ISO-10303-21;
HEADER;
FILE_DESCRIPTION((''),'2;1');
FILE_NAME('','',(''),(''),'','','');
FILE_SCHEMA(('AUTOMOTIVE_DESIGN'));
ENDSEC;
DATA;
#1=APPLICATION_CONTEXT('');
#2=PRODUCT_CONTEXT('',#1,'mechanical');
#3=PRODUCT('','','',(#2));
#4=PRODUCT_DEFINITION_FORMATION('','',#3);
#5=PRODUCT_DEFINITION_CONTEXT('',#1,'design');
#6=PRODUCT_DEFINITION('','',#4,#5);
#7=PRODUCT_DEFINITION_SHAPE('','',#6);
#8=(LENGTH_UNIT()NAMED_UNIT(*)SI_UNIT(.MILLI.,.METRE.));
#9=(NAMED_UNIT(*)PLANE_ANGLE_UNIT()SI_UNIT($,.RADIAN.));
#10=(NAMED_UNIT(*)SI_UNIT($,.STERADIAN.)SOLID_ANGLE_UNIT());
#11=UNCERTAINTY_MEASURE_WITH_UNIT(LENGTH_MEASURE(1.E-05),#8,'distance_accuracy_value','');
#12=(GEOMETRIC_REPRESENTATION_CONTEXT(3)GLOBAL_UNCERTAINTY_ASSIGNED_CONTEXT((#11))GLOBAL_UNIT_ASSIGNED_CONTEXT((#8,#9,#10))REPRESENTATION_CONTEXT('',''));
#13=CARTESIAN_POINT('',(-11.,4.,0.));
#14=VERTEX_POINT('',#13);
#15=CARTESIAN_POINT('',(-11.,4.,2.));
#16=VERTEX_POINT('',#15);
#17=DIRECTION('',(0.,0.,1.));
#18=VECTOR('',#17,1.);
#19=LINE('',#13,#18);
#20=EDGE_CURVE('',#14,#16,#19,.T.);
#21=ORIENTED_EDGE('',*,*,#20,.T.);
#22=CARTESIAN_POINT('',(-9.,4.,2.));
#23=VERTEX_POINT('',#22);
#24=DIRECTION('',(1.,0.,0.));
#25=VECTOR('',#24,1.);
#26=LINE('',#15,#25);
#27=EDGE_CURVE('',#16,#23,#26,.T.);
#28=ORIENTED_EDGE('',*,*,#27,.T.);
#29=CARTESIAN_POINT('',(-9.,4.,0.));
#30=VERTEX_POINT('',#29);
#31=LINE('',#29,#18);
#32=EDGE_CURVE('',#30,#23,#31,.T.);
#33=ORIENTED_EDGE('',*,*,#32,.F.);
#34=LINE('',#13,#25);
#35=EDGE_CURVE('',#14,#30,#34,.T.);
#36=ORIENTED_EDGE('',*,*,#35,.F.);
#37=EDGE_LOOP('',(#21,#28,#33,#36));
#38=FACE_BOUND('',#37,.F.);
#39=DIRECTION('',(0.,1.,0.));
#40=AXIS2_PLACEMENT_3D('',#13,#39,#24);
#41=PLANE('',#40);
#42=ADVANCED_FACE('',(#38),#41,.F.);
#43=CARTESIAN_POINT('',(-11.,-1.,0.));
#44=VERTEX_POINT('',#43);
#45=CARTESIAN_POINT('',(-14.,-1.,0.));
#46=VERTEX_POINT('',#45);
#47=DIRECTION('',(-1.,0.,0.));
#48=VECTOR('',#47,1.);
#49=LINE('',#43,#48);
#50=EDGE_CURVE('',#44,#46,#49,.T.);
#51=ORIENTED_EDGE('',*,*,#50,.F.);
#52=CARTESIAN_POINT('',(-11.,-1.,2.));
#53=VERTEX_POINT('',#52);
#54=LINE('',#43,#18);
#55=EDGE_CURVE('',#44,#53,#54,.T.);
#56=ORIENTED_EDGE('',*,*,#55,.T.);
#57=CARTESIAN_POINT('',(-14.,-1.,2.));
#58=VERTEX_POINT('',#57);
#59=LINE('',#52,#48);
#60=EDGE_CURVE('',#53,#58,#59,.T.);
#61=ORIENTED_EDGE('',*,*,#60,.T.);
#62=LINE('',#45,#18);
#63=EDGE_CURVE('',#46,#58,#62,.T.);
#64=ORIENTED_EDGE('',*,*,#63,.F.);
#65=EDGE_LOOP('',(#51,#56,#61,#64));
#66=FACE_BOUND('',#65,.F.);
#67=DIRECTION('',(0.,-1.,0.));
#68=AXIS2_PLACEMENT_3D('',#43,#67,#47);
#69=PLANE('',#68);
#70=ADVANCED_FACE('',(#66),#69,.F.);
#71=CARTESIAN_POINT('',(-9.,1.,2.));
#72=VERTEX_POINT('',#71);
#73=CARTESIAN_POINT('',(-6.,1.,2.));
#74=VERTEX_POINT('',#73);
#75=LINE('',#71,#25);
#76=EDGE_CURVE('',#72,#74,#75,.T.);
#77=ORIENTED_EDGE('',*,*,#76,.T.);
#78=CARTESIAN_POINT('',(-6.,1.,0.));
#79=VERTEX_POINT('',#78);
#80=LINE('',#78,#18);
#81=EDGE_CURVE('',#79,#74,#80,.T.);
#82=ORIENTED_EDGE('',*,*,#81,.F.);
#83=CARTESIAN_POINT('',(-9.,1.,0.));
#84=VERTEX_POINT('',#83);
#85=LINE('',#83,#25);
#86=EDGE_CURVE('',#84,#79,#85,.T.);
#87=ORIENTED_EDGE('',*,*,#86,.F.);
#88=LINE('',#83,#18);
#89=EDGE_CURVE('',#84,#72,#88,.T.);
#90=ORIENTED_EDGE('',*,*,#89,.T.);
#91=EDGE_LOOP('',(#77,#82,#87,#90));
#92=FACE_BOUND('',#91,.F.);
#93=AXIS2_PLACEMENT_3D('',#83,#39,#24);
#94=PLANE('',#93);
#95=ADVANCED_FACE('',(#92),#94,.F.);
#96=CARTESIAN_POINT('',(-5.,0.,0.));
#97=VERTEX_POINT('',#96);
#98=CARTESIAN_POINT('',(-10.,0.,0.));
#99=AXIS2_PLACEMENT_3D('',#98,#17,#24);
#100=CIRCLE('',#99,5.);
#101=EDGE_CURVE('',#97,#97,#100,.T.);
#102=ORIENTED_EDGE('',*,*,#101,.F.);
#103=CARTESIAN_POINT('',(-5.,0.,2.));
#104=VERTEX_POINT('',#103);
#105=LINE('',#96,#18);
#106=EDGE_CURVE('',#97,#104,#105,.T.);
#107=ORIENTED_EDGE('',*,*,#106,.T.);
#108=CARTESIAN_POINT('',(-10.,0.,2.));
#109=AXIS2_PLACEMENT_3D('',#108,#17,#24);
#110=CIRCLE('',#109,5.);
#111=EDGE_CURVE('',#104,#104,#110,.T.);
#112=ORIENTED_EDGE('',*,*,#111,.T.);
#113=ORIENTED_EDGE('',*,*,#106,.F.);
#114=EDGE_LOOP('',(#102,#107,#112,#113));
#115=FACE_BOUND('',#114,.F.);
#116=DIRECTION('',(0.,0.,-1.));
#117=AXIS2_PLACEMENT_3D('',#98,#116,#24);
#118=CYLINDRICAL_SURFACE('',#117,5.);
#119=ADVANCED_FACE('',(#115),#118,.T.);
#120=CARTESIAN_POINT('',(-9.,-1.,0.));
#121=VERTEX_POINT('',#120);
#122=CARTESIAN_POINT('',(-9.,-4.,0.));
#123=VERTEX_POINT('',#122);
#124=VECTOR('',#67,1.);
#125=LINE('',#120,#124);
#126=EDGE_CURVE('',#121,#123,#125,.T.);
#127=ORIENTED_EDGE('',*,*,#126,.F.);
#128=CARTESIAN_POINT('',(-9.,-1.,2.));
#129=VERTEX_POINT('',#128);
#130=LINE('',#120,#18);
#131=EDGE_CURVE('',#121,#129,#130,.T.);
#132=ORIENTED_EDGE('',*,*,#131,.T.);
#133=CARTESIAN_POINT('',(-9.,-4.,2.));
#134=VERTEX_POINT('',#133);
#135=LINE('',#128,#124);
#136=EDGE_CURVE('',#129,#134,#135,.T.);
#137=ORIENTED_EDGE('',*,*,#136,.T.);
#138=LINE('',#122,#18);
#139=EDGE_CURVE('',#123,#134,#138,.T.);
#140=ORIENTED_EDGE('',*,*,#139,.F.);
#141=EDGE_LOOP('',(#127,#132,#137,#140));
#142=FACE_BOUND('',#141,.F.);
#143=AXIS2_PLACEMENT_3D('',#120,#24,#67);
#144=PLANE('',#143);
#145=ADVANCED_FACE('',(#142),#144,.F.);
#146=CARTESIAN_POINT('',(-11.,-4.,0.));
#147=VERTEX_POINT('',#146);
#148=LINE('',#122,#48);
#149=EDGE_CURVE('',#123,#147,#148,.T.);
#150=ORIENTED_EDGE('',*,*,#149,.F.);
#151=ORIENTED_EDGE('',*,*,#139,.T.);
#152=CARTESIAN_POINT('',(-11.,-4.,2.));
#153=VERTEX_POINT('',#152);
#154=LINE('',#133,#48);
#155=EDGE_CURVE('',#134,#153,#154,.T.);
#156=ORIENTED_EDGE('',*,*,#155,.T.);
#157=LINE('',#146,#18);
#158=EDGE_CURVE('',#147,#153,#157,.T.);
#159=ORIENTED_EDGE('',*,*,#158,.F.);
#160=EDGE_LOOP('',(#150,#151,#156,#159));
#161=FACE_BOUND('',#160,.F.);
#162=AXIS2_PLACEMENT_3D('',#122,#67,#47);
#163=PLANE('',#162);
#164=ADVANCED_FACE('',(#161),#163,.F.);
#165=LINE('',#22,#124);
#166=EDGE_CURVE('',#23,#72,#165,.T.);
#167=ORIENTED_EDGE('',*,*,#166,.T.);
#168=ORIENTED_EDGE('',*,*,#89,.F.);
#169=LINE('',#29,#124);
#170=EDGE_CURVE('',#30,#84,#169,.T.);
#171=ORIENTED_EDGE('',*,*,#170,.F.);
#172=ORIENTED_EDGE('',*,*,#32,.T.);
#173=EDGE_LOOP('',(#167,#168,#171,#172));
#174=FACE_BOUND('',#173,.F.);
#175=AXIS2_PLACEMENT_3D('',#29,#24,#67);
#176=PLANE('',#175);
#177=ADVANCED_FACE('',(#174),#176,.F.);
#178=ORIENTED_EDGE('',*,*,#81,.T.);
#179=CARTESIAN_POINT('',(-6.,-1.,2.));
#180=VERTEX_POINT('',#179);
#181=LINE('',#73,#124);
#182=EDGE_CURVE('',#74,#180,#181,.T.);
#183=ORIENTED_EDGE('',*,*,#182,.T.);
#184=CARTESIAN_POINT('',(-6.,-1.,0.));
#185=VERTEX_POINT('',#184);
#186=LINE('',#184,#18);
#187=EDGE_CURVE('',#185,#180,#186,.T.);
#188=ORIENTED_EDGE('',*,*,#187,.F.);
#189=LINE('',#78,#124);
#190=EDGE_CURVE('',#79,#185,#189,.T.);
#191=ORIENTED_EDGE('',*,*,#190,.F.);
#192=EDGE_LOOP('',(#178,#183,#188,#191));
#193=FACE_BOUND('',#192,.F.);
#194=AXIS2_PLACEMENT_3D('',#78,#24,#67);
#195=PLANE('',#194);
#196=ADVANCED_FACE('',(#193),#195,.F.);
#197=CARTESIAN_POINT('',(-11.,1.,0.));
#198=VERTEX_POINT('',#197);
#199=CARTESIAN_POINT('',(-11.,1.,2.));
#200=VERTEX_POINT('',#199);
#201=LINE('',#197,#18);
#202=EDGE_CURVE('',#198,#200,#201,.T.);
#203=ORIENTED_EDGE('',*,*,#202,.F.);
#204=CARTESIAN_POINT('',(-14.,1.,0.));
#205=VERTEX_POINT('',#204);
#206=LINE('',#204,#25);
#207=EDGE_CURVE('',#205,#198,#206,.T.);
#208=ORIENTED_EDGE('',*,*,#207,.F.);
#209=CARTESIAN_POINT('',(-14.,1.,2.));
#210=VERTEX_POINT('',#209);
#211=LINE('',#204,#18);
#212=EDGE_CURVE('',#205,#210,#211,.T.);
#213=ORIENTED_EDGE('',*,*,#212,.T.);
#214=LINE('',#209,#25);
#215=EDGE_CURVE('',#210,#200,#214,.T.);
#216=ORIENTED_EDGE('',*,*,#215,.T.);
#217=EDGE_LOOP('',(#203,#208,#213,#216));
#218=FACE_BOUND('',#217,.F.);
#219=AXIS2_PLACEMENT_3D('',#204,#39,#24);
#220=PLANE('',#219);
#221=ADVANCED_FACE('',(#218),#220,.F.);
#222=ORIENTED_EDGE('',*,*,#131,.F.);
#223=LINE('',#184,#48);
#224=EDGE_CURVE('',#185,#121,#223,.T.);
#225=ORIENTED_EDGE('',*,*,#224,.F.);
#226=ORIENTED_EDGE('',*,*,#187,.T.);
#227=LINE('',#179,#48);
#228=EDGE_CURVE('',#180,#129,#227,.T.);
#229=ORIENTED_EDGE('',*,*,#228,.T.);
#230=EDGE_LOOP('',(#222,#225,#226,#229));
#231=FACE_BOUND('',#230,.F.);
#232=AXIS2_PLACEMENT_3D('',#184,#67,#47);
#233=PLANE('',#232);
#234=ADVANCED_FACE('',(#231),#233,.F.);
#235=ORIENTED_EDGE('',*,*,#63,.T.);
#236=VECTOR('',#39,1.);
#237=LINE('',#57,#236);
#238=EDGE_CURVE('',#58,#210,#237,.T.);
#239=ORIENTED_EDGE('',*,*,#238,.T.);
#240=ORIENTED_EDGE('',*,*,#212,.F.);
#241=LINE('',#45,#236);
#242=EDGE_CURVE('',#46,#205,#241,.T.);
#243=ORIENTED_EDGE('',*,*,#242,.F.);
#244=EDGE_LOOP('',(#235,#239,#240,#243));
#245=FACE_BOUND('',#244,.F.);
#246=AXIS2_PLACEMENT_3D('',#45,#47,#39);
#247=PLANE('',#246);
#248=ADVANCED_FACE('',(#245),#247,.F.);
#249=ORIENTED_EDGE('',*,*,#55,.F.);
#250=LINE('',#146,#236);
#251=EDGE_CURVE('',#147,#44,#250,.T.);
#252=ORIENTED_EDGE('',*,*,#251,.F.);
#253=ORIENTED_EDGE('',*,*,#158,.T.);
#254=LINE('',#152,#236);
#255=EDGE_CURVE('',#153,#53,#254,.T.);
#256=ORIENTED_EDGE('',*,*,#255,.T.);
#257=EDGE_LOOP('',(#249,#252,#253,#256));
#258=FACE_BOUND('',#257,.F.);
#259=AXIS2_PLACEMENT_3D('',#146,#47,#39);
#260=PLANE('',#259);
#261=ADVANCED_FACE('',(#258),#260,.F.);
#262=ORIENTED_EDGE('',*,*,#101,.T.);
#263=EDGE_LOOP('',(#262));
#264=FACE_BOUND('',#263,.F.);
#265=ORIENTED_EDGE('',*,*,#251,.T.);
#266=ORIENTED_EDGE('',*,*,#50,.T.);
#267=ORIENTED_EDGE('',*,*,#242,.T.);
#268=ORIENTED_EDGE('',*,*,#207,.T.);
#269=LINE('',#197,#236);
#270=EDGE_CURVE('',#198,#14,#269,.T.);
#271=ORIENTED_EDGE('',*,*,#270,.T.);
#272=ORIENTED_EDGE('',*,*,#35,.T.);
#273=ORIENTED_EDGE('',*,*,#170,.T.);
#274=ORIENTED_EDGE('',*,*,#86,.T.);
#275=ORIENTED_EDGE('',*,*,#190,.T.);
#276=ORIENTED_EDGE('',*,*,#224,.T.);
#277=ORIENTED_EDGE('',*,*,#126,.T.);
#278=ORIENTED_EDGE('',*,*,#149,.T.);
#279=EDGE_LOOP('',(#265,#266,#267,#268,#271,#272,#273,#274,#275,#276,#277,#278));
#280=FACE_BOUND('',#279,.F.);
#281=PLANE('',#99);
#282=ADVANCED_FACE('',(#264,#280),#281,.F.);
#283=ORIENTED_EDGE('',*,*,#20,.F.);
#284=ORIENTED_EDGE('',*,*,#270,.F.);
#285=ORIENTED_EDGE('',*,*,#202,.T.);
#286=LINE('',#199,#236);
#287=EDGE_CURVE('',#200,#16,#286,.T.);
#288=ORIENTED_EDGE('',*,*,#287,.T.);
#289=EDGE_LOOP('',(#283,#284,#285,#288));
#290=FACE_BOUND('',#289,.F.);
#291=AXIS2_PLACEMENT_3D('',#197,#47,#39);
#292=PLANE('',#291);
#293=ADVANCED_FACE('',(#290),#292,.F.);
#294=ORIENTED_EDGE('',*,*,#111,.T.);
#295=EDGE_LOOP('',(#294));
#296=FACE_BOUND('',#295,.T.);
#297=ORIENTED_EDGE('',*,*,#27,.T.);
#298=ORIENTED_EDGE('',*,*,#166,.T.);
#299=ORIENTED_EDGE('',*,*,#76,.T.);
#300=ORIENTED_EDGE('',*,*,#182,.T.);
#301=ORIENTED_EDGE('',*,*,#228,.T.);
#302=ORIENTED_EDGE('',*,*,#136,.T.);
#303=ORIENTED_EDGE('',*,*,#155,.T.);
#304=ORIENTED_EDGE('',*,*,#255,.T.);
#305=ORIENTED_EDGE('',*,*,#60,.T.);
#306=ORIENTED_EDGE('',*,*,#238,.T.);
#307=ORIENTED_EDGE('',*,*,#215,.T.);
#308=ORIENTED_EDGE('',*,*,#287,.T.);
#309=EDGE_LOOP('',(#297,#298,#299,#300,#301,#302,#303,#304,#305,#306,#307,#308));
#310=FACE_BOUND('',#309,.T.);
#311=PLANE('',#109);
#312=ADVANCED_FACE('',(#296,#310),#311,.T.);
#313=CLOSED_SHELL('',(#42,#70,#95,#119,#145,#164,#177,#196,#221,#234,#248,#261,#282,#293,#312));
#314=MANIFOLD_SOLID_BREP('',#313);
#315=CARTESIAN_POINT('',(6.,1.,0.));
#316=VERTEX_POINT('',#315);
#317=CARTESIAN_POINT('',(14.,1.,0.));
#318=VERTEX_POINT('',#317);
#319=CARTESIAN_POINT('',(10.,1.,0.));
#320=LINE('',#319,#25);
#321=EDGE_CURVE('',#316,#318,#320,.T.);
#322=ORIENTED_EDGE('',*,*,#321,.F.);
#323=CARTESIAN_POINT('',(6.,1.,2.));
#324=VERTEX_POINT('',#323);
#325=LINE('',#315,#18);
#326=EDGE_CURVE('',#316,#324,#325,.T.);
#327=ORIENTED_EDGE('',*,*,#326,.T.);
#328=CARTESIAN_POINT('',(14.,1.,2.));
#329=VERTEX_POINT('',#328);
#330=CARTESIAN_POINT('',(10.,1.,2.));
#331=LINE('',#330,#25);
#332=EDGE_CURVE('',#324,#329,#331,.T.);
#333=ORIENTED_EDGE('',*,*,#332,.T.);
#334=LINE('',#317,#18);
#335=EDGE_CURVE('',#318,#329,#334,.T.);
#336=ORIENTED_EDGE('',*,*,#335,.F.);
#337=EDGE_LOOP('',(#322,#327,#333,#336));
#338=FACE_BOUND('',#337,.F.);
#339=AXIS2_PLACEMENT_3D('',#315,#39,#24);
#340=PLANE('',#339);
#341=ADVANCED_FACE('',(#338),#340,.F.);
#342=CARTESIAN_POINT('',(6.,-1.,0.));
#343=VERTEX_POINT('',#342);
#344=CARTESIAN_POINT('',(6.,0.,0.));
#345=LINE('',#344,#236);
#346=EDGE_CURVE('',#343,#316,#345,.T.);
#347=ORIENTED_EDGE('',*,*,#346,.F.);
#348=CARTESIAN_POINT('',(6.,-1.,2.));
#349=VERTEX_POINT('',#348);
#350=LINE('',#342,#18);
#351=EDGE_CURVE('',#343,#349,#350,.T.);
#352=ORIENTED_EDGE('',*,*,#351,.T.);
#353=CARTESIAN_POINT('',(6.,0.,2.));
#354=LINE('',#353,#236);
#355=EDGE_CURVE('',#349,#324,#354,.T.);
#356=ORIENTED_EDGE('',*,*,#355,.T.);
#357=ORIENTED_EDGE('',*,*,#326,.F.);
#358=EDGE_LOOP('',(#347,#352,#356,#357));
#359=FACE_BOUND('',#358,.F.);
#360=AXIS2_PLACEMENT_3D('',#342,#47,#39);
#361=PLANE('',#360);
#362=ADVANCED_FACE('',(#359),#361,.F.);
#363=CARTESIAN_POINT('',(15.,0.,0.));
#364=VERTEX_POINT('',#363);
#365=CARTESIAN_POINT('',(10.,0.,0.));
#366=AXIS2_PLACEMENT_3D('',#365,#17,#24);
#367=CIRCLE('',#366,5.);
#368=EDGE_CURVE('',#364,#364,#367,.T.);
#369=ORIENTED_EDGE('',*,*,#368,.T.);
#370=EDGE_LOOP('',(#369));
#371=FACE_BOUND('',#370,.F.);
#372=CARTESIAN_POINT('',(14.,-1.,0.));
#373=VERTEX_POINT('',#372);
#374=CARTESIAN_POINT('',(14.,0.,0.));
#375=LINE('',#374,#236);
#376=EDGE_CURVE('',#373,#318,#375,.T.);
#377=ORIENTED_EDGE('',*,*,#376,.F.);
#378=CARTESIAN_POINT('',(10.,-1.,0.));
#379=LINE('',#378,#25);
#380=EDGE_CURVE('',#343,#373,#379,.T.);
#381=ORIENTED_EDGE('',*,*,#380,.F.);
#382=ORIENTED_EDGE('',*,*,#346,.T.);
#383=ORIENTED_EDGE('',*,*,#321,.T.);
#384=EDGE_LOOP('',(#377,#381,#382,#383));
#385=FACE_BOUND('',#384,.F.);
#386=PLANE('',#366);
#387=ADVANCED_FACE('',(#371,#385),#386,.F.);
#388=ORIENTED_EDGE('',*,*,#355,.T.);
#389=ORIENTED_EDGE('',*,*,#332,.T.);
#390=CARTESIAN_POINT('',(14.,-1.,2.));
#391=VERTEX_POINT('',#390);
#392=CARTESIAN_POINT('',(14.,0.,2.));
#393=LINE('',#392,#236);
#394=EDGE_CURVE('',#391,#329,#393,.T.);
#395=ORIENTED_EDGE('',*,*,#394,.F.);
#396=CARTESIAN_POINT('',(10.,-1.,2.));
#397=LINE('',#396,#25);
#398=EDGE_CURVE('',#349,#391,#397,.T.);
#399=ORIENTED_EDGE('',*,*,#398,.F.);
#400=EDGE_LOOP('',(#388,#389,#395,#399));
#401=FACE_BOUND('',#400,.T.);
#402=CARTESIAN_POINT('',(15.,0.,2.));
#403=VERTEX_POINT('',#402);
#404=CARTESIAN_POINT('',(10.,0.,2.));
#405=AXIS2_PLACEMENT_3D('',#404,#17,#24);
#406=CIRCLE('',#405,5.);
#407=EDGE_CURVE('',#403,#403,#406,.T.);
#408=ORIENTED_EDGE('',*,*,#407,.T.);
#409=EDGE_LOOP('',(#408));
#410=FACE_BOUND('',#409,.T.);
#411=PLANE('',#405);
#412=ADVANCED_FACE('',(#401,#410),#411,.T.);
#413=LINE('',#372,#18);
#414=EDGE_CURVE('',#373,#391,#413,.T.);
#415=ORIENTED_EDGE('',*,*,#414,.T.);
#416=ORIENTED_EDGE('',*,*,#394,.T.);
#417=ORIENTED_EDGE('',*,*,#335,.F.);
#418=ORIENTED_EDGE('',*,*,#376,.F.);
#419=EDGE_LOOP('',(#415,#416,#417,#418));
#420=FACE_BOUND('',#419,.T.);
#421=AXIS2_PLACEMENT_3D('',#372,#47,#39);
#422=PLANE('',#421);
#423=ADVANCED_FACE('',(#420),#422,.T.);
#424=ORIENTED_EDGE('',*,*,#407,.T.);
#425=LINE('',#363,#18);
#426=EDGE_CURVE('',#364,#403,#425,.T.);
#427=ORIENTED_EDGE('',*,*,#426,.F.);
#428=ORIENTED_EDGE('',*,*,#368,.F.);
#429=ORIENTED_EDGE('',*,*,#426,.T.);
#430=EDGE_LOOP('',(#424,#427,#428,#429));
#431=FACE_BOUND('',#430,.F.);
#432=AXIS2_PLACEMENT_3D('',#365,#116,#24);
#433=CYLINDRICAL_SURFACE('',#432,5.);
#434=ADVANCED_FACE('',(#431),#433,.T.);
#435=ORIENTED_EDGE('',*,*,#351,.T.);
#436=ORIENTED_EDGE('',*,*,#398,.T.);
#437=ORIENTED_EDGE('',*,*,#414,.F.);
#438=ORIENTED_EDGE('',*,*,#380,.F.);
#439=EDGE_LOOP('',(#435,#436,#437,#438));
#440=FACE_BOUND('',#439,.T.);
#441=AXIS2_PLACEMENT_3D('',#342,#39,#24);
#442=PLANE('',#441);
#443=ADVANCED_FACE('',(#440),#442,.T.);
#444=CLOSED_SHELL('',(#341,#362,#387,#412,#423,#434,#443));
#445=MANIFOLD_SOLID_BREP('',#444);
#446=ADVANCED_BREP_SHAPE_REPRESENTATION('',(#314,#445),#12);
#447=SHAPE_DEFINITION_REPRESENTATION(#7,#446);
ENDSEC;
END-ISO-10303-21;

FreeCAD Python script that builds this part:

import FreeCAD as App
import Part
import Sketcher
Q = App.Units.Quantity

doc = App.newDocument("Part")
params = doc.addObject("Spreadsheet::Sheet", "Params")
for row, (alias, value) in enumerate([
    ("sketch1_diameter", "10 mm"),
    ("sketch1_width", "2 mm"),
    ("sketch1_width2", "3 mm"),
    ("pad1_length", "2 mm"),
], start=1):
    params.set(f"A{row}", alias)
    params.set(f"B{row}", "=" + value)
    params.setAlias(f"B{row}", alias)

body = doc.addObject("PartDesign::Body", "Body")
body.AllowCompound = True

sketch1 = doc.addObject("Sketcher::SketchObject", "Sketch")
body.addObject(sketch1)
sketch1.AttachmentSupport = (doc.XY_Plane, [""])
sketch1.MapMode = "FlatFace"
sketch1.addGeometry([
    Part.Circle(App.Vector(-10, 0, 0), App.Vector(0, 0, 1), 5),
    Part.LineSegment(App.Vector(-11, 1, 0), App.Vector(-11, 4, 0)),
    Part.LineSegment(App.Vector(-11, 4, 0), App.Vector(-9, 4, 0)),
    Part.LineSegment(App.Vector(-9, 4, 0), App.Vector(-9, 1, 0)),
    Part.LineSegment(App.Vector(-9, 1, 0), App.Vector(-6, 1, 0)),
    Part.LineSegment(App.Vector(-6, 1, 0), App.Vector(-6, -1, 0)),
    Part.LineSegment(App.Vector(-6, -1, 0), App.Vector(-9, -1, 0)),
    Part.LineSegment(App.Vector(-9, -1, 0), App.Vector(-9, -4, 0)),
    Part.LineSegment(App.Vector(-9, -4, 0), App.Vector(-11, -4, 0)),
    Part.LineSegment(App.Vector(-11, -4, 0), App.Vector(-11, -1, 0)),
    Part.LineSegment(App.Vector(-11, -1, 0), App.Vector(-14, -1, 0)),
    Part.LineSegment(App.Vector(-14, -1, 0), App.Vector(-14, 1, 0)),
    Part.LineSegment(App.Vector(-14, 1, 0), App.Vector(-11, 1, 0)),
    Part.Circle(App.Vector(10, 0, 0), App.Vector(0, 0, 1), 5),
    Part.LineSegment(App.Vector(14, -1, 0), App.Vector(6, -1, 0)),
    Part.LineSegment(App.Vector(6, -1, 0), App.Vector(6, 1, 0)),
    Part.LineSegment(App.Vector(6, 1, 0), App.Vector(14, 1, 0)),
    Part.LineSegment(App.Vector(14, 1, 0), App.Vector(14, -1, 0)),
], False)
sketch1.addConstraint([
    Sketcher.Constraint("Coincident", 1, 2, 2, 1),
    Sketcher.Constraint("Coincident", 2, 2, 3, 1),
    Sketcher.Constraint("Coincident", 3, 2, 4, 1),
    Sketcher.Constraint("Coincident", 4, 2, 5, 1),
    Sketcher.Constraint("Coincident", 5, 2, 6, 1),
    Sketcher.Constraint("Coincident", 6, 2, 7, 1),
    Sketcher.Constraint("Coincident", 7, 2, 8, 1),
    Sketcher.Constraint("Coincident", 8, 2, 9, 1),
    Sketcher.Constraint("Coincident", 9, 2, 10, 1),
    Sketcher.Constraint("Coincident", 10, 2, 11, 1),
    Sketcher.Constraint("Coincident", 11, 2, 12, 1),
    Sketcher.Constraint("Coincident", 12, 2, 1, 1),
    Sketcher.Constraint("Coincident", 14, 2, 15, 1),
    Sketcher.Constraint("Coincident", 15, 2, 16, 1),
    Sketcher.Constraint("Coincident", 16, 2, 17, 1),
    Sketcher.Constraint("Coincident", 17, 2, 14, 1),
    Sketcher.Constraint("Vertical", 1),
    Sketcher.Constraint("Horizontal", 2),
    Sketcher.Constraint("Vertical", 3),
    Sketcher.Constraint("Horizontal", 4),
    Sketcher.Constraint("Vertical", 5),
    Sketcher.Constraint("Horizontal", 6),
    Sketcher.Constraint("Vertical", 7),
    Sketcher.Constraint("Horizontal", 8),
    Sketcher.Constraint("Vertical", 9),
    Sketcher.Constraint("Horizontal", 10),
    Sketcher.Constraint("Vertical", 11),
    Sketcher.Constraint("Horizontal", 12),
    Sketcher.Constraint("Horizontal", 14),
    Sketcher.Constraint("Vertical", 15),
    Sketcher.Constraint("Horizontal", 16),
    Sketcher.Constraint("Vertical", 17),
    Sketcher.Constraint("Equal", 0, 13),
    Sketcher.Constraint("Symmetric", 0, 3, 13, 3, -1, 1),
    Sketcher.Constraint("Symmetric", 4, 2, 14, 2, -1, 1),
    Sketcher.Constraint("Symmetric", 10, 2, 16, 2, -1, 1),
    Sketcher.Constraint("Symmetric", 3, 2, 6, 2, -1),
    Sketcher.Constraint("Symmetric", 1, 2, 8, 2, -1),
    Sketcher.Constraint("PointOnObject", 0, 3, -1),
    Sketcher.Constraint("Horizontal", 6, 2, 9, 2),
    Sketcher.Constraint("Horizontal", 4, 2, 11, 2),
    Sketcher.Constraint("Equal", 6, 10),
    Sketcher.Constraint("Equal", 12, 1),
    Sketcher.Constraint("Equal", 8, 5),
    Sketcher.Constraint("Diameter", 0, Q("10 mm")),
    Sketcher.Constraint("DistanceX", 2, 1, 2, 2, Q("2 mm")),
    Sketcher.Constraint("DistanceX", 4, 1, 4, 2, Q("3 mm")),
    Sketcher.Constraint("DistanceX", 0, 3, -1, 1, Q("10 mm")),
    Sketcher.Constraint("DistanceX", 1, 2, -1, 1, Q("11 mm")),
])
sketch1.setExpression("Constraints[44]", "Params.sketch1_diameter")
sketch1.setExpression("Constraints[45]", "Params.sketch1_width")
sketch1.setExpression("Constraints[46]", "Params.sketch1_width2")
pad1 = doc.addObject("PartDesign::Pad", "Pad")
body.addObject(pad1)
pad1.Profile = sketch1
pad1.setExpression("Length", "Params.pad1_length")

doc.recompute()
